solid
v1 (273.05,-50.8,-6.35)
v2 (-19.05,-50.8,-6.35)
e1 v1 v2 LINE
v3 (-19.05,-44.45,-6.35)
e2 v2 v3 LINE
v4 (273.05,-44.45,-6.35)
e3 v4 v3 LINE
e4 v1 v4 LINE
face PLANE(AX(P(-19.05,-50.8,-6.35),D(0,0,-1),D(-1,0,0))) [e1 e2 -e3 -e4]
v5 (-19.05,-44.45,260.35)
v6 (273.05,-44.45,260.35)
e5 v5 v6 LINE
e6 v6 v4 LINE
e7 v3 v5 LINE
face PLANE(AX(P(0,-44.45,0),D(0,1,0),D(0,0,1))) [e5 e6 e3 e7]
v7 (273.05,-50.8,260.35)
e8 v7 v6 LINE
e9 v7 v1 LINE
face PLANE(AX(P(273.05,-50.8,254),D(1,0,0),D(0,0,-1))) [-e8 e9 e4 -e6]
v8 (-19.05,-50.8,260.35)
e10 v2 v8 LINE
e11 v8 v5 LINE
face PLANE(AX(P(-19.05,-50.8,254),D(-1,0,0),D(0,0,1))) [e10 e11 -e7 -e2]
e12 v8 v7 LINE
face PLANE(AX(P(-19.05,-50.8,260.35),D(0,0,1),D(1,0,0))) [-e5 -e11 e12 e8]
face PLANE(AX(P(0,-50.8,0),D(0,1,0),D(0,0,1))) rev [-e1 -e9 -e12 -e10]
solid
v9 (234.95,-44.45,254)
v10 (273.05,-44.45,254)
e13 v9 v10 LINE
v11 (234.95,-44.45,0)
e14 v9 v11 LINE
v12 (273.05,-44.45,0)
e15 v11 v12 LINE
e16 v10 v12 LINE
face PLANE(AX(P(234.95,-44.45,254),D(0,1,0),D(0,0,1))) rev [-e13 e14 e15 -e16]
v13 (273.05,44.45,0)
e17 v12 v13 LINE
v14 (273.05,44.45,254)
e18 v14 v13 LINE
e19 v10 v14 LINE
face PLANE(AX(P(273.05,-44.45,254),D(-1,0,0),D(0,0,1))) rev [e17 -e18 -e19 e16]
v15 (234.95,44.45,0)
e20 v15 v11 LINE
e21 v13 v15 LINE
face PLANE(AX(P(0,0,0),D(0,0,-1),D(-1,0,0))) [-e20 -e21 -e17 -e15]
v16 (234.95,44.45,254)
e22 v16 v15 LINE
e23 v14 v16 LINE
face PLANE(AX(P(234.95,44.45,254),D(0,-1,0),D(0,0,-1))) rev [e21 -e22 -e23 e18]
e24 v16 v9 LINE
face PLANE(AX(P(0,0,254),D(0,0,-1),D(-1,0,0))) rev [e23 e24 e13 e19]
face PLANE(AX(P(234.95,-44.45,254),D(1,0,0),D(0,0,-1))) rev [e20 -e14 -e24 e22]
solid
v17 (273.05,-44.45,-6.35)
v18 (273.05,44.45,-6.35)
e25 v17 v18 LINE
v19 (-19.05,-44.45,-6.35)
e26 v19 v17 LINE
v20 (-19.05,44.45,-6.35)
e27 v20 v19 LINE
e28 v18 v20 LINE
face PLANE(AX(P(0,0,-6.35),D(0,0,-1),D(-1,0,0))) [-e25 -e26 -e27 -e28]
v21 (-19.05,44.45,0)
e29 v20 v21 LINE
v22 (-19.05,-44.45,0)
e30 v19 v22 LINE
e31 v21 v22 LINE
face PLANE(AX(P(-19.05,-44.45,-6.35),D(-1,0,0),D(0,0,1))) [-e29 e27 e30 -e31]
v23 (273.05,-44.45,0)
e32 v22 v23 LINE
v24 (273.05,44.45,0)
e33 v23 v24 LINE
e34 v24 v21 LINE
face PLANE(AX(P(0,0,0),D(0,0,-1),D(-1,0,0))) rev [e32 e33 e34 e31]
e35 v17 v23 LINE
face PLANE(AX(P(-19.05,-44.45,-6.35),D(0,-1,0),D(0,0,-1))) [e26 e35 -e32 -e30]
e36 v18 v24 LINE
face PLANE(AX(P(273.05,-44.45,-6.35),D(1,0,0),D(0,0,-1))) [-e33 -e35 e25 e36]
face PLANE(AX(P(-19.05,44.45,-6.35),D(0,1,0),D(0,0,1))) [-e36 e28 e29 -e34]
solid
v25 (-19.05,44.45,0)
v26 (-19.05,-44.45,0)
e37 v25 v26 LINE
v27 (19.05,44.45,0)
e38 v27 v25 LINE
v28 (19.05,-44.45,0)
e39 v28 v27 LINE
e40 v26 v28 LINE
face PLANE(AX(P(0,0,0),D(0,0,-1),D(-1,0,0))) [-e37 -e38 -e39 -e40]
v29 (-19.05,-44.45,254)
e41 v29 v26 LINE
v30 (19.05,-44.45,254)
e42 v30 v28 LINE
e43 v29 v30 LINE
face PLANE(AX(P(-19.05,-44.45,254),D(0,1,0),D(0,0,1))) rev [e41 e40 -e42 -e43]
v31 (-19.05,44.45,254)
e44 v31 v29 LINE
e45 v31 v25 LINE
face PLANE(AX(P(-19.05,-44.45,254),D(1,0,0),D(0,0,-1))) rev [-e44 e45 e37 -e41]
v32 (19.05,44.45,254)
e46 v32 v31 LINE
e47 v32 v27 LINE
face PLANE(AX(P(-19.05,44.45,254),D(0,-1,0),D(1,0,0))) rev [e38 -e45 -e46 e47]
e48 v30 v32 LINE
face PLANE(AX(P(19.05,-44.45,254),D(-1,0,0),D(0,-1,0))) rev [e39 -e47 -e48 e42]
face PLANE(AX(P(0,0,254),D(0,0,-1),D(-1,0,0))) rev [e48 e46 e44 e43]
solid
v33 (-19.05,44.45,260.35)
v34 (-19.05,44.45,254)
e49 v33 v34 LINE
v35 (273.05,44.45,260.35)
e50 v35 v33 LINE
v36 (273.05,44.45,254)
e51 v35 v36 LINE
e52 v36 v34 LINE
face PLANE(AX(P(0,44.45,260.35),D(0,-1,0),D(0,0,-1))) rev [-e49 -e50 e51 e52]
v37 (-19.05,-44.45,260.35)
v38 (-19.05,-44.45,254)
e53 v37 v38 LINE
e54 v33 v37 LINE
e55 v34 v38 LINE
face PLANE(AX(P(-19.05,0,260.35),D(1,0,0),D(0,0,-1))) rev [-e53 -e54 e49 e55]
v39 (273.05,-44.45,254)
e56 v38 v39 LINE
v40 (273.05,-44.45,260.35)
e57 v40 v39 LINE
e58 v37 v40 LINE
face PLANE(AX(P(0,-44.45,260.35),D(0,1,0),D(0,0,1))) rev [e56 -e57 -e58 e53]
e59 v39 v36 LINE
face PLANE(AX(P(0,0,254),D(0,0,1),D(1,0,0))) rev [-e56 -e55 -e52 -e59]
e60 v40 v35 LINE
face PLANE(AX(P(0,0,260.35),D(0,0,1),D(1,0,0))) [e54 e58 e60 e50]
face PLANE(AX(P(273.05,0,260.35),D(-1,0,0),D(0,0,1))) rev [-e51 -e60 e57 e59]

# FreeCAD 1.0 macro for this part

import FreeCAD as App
import Part
import Sketcher

V = App.Vector
Q = App.Units.Quantity


def add_polygon(sketch, points):
    """Adds a closed chain of lines whose ends are joined by coincident constraints."""
    first, n = sketch.GeometryCount, len(points)
    for a, b in zip(points, points[1:] + points[:1]):
        sketch.addGeometry(Part.LineSegment(App.Vector(*a, 0), App.Vector(*b, 0)), False)
    for i in range(n):
        sketch.addConstraint(Sketcher.Constraint("Coincident", first + i, 2, first + (i + 1) % n, 1))

doc = App.newDocument("Part")
body = doc.addObject("PartDesign::Body", "Body")

# Sketch on XY plane
sketch1 = body.newObject("Sketcher::SketchObject", "Sketch")
sketch1.AttachmentSupport = (doc.getObject("XY_Plane"), [""])
sketch1.MapMode = "FlatFace"
add_polygon(sketch1, [(-19.05, 44.45), (-19.05, -44.45), (19.05, -44.45), (19.05, 44.45)])  # lines 0-3
sketch1.addConstraint(Sketcher.Constraint("Vertical", 0))
sketch1.addConstraint(Sketcher.Constraint("Horizontal", 1))
sketch1.addConstraint(Sketcher.Constraint("Vertical", 2))
sketch1.addConstraint(Sketcher.Constraint("Horizontal", 3))
sketch1.addConstraint(Sketcher.Constraint("Symmetric", 0, 2, 2, 2, -1, 1))
sketch1.addConstraint(Sketcher.Constraint("DistanceX", 1, 1, 1, 2, Q("1.5 in")))
sketch1.addConstraint(Sketcher.Constraint("DistanceY", 0, 2, 0, 1, Q("3.5 in")))
pad1 = body.newObject("PartDesign::Pad", "Pad")
pad1.Profile = sketch1
pad1.Length = Q("10 in")
body2 = doc.addObject("PartDesign::Body", "Body001")

# Sketch on XY plane
sketch2 = body2.newObject("Sketcher::SketchObject", "Sketch001")
sketch2.AttachmentSupport = (doc.getObject("XY_Plane001"), [""])
sketch2.MapMode = "FlatFace"
add_polygon(sketch2, [(234.95, 44.45), (234.95, -44.45), (273.05, -44.45), (273.05, 44.45)])  # lines 0-3
sketch2.addConstraint(Sketcher.Constraint("Vertical", 0))
sketch2.addConstraint(Sketcher.Constraint("Horizontal", 1))
sketch2.addConstraint(Sketcher.Constraint("Vertical", 2))
sketch2.addConstraint(Sketcher.Constraint("Horizontal", 3))
sketch2.addConstraint(Sketcher.Constraint("DistanceX", 1, 1, 1, 2, Q("1.5 in")))
sketch2.addConstraint(Sketcher.Constraint("DistanceY", 0, 2, 0, 1, Q("3.5 in")))
sketch2.addConstraint(Sketcher.Constraint("DistanceX", -1, 1, 0, 2, Q("9.25 in")))
sketch2.addConstraint(Sketcher.Constraint("DistanceY", 0, 2, -1, 1, Q("1.75 in")))
pad2 = body2.newObject("PartDesign::Pad", "Pad001")
pad2.Profile = sketch2
pad2.Length = Q("10 in")
body3 = doc.addObject("PartDesign::Body", "Body002")

# Sketch on XY plane
sketch3 = body3.newObject("Sketcher::SketchObject", "Sketch002")
sketch3.AttachmentSupport = (doc.getObject("XY_Plane002"), [""])
sketch3.MapMode = "FlatFace"
add_polygon(sketch3, [(-19.05, 44.45), (-19.05, -44.45), (273.05, -44.45), (273.05, 44.45)])  # lines 0-3
sketch3.addConstraint(Sketcher.Constraint("Vertical", 0))
sketch3.addConstraint(Sketcher.Constraint("Horizontal", 1))
sketch3.addConstraint(Sketcher.Constraint("Vertical", 2))
sketch3.addConstraint(Sketcher.Constraint("Horizontal", 3))
sketch3.addConstraint(Sketcher.Constraint("DistanceX", 1, 1, 1, 2, Q("11.5 in")))
sketch3.addConstraint(Sketcher.Constraint("DistanceY", 0, 2, 0, 1, Q("3.5 in")))
sketch3.addConstraint(Sketcher.Constraint("DistanceX", 0, 2, -1, 1, Q("0.75 in")))
sketch3.addConstraint(Sketcher.Constraint("DistanceY", 0, 2, -1, 1, Q("1.75 in")))
pad3 = body3.newObject("PartDesign::Pad", "Pad002")
pad3.Profile = sketch3
pad3.Length = Q("0.25 in")
pad3.Reversed = True
body4 = doc.addObject("PartDesign::Body", "Body003")

# Sketch on XY plane
sketch4 = body4.newObject("Sketcher::SketchObject", "Sketch003")
sketch4.AttachmentSupport = (doc.getObject("XY_Plane003"), [""])
sketch4.MapMode = "FlatFace"
sketch4.AttachmentOffset = App.Placement(V(0, 0, 10 * 25.4), App.Rotation())
add_polygon(sketch4, [(-19.05, 44.45), (-19.05, -44.45), (273.05, -44.45), (273.05, 44.45)])  # lines 0-3
sketch4.addConstraint(Sketcher.Constraint("Vertical", 0))
sketch4.addConstraint(Sketcher.Constraint("Horizontal", 1))
sketch4.addConstraint(Sketcher.Constraint("Vertical", 2))
sketch4.addConstraint(Sketcher.Constraint("Horizontal", 3))
sketch4.addConstraint(Sketcher.Constraint("DistanceX", 1, 1, 1, 2, Q("11.5 in")))
sketch4.addConstraint(Sketcher.Constraint("DistanceY", 0, 2, 0, 1, Q("3.5 in")))
sketch4.addConstraint(Sketcher.Constraint("DistanceX", 0, 2, -1, 1, Q("0.75 in")))
sketch4.addConstraint(Sketcher.Constraint("DistanceY", 0, 2, -1, 1, Q("1.75 in")))
pad4 = body4.newObject("PartDesign::Pad", "Pad003")
pad4.Profile = sketch4
pad4.Length = Q("0.25 in")
body5 = doc.addObject("PartDesign::Body", "Body004")

# Sketch on XZ plane
sketch5 = body5.newObject("Sketcher::SketchObject", "Sketch004")
sketch5.AttachmentSupport = (doc.getObject("XZ_Plane004"), [""])
sketch5.MapMode = "FlatFace"
sketch5.AttachmentOffset = App.Placement(V(0, 0, 1.75 * 25.4), App.Rotation())
add_polygon(sketch5, [(-19.05, -6.35), (-19.05, 260.35), (273.05, 260.35), (273.05, -6.35)])  # lines 0-3
sketch5.addConstraint(Sketcher.Constraint("Vertical", 0))
sketch5.addConstraint(Sketcher.Constraint("Horizontal", 1))
sketch5.addConstraint(Sketcher.Constraint("Vertical", 2))
sketch5.addConstraint(Sketcher.Constraint("Horizontal", 3))
sketch5.addConstraint(Sketcher.Constraint("DistanceX", 1, 1, 1, 2, Q("11.5 in")))
sketch5.addConstraint(Sketcher.Constraint("DistanceY", 0, 1, 0, 2, Q("10.5 in")))
sketch5.addConstraint(Sketcher.Constraint("DistanceX", 0, 2, -1, 1, Q("0.75 in")))
sketch5.addConstraint(Sketcher.Constraint("DistanceY", -1, 1, 0, 2, Q("10.25 in")))
pad5 = body5.newObject("PartDesign::Pad", "Pad004")
pad5.Profile = sketch5
pad5.Length = Q("0.25 in")

doc.recompute()
